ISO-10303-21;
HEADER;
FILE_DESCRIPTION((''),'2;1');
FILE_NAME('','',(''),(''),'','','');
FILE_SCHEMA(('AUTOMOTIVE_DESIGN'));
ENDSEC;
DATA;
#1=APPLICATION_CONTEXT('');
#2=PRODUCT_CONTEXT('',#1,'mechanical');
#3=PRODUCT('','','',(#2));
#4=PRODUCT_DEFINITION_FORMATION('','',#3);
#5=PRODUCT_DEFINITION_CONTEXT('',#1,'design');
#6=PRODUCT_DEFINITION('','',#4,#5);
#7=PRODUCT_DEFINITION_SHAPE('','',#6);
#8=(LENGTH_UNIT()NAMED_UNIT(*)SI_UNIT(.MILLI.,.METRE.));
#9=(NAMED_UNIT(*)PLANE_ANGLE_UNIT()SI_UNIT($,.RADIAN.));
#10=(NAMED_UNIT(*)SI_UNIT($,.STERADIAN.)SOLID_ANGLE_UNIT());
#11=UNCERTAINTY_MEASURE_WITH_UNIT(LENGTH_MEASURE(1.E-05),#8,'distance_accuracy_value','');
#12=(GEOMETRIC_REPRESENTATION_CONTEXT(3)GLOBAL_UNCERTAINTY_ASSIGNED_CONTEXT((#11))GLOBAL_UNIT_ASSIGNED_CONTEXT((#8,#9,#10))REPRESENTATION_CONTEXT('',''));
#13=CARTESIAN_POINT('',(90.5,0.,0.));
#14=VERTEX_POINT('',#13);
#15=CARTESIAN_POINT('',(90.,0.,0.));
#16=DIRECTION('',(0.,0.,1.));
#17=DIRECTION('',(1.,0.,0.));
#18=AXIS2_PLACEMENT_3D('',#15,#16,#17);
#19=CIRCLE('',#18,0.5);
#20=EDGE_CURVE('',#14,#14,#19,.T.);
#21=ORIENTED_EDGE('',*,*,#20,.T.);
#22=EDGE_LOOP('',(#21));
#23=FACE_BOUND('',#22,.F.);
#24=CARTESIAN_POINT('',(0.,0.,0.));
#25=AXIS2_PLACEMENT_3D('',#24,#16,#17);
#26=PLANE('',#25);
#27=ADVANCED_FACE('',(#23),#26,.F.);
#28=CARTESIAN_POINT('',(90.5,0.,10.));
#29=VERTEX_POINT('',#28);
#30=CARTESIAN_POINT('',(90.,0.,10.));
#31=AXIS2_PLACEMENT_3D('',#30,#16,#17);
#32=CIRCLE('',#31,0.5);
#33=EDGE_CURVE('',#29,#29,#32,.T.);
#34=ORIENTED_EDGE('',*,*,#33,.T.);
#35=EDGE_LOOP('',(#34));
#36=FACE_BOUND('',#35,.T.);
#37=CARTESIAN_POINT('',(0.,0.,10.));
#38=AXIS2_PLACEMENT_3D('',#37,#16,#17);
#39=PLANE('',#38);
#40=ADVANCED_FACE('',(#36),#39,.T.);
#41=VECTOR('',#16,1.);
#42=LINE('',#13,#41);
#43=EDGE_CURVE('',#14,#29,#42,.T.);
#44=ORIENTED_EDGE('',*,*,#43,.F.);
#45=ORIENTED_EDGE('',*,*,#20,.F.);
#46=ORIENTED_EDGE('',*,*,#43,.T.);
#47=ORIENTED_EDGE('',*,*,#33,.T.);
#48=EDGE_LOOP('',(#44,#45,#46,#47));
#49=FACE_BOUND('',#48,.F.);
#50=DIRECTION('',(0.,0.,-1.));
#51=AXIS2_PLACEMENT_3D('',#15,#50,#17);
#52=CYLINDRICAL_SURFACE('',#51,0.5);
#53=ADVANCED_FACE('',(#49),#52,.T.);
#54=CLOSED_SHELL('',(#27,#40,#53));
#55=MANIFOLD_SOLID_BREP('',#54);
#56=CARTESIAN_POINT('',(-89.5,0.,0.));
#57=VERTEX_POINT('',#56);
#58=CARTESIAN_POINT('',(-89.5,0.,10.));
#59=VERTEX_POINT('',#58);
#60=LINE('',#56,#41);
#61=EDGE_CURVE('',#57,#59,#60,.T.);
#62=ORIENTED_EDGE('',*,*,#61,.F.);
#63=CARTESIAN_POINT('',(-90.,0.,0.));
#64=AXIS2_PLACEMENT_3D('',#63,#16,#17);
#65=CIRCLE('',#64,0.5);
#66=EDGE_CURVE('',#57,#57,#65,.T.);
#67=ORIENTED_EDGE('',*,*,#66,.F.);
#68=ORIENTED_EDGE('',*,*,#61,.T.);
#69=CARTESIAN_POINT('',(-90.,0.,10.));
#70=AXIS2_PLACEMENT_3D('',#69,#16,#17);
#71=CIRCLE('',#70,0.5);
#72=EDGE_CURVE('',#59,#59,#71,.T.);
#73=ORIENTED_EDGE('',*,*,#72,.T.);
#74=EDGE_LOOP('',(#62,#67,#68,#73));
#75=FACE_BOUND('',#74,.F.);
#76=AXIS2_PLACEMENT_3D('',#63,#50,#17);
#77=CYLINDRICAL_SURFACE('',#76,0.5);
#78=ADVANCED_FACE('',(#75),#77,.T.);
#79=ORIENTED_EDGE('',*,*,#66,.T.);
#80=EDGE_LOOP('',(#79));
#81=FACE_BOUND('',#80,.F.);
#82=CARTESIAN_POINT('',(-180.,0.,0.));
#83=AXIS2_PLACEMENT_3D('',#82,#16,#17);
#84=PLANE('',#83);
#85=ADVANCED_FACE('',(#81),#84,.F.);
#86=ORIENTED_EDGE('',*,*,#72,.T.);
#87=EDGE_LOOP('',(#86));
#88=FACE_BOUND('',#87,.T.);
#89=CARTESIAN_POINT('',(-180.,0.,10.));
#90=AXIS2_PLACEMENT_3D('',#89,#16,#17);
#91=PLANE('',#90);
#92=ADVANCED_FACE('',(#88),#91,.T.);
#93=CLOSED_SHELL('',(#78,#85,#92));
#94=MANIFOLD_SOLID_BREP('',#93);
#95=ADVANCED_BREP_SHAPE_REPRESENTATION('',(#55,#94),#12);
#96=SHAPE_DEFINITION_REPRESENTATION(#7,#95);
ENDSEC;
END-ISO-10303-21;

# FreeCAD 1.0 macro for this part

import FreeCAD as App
import Part
import Sketcher

V = App.Vector

doc = App.newDocument("Part")
body = doc.addObject("PartDesign::Body", "Body")
body.AllowCompound = True

# Sketch on XY plane
sketch1 = body.newObject("Sketcher::SketchObject", "Sketch")
sketch1.AttachmentSupport = (doc.getObject("XY_Plane"), [""])
sketch1.MapMode = "FlatFace"
sketch1.addGeometry(Part.Circle(V(90, 0, 0), V(0, 0, 1), 0.5), False)
sketch1.addConstraint(Sketcher.Constraint("PointOnObject", 0, 3, -1))
sketch1.addConstraint(Sketcher.Constraint("Diameter", 0, 1.0))
sketch1.addConstraint(Sketcher.Constraint("DistanceX", -1, 1, 0, 3, 90.0))
pad1 = body.newObject("PartDesign::Pad", "Pad")
pad1.Profile = sketch1
pad1.Length = 10
doc.recompute()

linearpattern = body.newObject("PartDesign::LinearPattern", "LinearPattern")
linearpattern.Originals = [pad1]
linearpattern.Direction = (doc.getObject("X_Axis"), [""])
linearpattern.Mode = "offset"
linearpattern.Offset = 180
linearpattern.Occurrences = 2
linearpattern.Reversed = True
body.Tip = linearpattern

doc.recompute()
